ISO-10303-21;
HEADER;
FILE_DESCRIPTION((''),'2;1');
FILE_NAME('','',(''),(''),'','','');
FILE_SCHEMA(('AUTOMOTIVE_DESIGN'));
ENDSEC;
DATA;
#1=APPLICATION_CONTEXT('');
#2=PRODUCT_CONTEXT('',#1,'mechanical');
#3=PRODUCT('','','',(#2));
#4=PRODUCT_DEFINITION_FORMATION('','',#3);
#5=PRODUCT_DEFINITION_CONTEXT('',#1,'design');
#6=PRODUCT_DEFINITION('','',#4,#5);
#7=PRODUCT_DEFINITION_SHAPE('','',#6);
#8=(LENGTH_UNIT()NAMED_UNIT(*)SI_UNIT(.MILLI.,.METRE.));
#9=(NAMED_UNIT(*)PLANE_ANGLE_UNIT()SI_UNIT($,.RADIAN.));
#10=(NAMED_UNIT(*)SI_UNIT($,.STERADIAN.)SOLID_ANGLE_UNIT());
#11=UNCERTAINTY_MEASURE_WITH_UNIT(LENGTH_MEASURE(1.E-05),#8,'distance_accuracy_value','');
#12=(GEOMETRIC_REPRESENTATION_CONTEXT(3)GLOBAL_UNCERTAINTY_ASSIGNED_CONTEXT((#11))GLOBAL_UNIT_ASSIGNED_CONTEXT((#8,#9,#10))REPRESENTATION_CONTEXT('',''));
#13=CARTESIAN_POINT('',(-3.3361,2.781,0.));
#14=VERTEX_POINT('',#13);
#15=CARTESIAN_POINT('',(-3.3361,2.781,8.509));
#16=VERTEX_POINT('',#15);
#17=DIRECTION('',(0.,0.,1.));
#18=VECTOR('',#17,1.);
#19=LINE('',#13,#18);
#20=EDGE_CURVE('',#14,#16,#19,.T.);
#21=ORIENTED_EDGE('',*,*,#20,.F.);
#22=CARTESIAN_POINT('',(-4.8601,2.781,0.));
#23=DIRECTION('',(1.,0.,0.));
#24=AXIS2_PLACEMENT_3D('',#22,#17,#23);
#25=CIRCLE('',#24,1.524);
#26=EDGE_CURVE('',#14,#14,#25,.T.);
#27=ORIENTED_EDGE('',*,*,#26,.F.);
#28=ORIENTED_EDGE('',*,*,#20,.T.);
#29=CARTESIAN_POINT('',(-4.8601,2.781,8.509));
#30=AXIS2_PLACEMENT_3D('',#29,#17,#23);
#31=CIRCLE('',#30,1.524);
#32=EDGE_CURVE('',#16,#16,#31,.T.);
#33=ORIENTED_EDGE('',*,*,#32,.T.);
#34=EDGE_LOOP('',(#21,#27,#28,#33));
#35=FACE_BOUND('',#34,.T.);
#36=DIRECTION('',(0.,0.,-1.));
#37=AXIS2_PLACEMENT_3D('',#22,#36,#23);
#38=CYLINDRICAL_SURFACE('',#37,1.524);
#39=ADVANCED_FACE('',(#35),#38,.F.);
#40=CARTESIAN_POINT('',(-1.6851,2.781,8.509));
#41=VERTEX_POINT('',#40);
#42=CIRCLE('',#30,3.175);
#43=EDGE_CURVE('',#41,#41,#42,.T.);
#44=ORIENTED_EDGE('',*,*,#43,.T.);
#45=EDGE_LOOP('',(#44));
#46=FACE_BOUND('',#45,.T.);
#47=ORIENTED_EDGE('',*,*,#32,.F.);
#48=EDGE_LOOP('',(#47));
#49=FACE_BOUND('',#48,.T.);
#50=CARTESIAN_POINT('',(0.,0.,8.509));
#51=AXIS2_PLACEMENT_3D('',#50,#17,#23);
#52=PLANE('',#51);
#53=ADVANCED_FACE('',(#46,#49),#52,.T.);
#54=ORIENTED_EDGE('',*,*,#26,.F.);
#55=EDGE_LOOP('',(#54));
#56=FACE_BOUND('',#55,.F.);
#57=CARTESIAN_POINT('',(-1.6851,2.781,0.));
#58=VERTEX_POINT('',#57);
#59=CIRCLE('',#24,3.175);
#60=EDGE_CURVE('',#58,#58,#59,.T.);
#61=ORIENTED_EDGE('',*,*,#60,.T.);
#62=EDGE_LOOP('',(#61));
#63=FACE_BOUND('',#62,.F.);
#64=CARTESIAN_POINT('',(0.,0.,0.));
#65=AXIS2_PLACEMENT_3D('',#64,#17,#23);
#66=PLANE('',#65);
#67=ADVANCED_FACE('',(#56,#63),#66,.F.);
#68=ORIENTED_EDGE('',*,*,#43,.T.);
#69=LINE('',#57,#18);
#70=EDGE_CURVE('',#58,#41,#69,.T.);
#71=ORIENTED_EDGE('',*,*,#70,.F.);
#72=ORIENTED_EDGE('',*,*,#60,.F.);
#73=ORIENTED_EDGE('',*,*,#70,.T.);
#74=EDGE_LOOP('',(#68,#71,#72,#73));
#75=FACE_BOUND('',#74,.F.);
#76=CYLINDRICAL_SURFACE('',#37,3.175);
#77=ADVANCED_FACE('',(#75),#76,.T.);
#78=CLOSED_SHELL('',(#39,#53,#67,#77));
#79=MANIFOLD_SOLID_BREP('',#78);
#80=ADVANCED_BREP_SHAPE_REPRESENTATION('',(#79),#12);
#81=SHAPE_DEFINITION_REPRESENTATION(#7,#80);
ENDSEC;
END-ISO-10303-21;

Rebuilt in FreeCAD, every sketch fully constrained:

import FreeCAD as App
import Part
import Sketcher
from FreeCAD import Vector
Q = App.Units.Quantity

doc = App.newDocument("Part")
body = doc.addObject("PartDesign::Body", "Body")

sketch1 = doc.addObject("Sketcher::SketchObject", "Sketch")
body.addObject(sketch1)
sketch1.AttachmentSupport = (doc.XY_Plane, [""])
sketch1.MapMode = "FlatFace"
sketch1.addGeometry([
    Part.Circle(Vector(-4.9, 2.8, 0), Vector(0, 0, 1), 3.2),
    Part.Circle(Vector(-4.9, 2.8, 0), Vector(0, 0, 1), 1.5),
], False)
sketch1.addConstraint([
    Sketcher.Constraint("Coincident", 1, 3, 0, 3),
    Sketcher.Constraint("Diameter", 0, Q("0.25 in")),
    Sketcher.Constraint("Diameter", 1, Q("0.12 in")),
    Sketcher.Constraint("DistanceY", -1, 1, 0, 3, Q("0.1095 in")),
    Sketcher.Constraint("DistanceX", 0, 3, -1, 1, 4.86),
])
pad1 = doc.addObject("PartDesign::Pad", "Pad")
body.addObject(pad1)
pad1.Profile = sketch1
pad1.Length = Q("0.335 in")

doc.recompute()
